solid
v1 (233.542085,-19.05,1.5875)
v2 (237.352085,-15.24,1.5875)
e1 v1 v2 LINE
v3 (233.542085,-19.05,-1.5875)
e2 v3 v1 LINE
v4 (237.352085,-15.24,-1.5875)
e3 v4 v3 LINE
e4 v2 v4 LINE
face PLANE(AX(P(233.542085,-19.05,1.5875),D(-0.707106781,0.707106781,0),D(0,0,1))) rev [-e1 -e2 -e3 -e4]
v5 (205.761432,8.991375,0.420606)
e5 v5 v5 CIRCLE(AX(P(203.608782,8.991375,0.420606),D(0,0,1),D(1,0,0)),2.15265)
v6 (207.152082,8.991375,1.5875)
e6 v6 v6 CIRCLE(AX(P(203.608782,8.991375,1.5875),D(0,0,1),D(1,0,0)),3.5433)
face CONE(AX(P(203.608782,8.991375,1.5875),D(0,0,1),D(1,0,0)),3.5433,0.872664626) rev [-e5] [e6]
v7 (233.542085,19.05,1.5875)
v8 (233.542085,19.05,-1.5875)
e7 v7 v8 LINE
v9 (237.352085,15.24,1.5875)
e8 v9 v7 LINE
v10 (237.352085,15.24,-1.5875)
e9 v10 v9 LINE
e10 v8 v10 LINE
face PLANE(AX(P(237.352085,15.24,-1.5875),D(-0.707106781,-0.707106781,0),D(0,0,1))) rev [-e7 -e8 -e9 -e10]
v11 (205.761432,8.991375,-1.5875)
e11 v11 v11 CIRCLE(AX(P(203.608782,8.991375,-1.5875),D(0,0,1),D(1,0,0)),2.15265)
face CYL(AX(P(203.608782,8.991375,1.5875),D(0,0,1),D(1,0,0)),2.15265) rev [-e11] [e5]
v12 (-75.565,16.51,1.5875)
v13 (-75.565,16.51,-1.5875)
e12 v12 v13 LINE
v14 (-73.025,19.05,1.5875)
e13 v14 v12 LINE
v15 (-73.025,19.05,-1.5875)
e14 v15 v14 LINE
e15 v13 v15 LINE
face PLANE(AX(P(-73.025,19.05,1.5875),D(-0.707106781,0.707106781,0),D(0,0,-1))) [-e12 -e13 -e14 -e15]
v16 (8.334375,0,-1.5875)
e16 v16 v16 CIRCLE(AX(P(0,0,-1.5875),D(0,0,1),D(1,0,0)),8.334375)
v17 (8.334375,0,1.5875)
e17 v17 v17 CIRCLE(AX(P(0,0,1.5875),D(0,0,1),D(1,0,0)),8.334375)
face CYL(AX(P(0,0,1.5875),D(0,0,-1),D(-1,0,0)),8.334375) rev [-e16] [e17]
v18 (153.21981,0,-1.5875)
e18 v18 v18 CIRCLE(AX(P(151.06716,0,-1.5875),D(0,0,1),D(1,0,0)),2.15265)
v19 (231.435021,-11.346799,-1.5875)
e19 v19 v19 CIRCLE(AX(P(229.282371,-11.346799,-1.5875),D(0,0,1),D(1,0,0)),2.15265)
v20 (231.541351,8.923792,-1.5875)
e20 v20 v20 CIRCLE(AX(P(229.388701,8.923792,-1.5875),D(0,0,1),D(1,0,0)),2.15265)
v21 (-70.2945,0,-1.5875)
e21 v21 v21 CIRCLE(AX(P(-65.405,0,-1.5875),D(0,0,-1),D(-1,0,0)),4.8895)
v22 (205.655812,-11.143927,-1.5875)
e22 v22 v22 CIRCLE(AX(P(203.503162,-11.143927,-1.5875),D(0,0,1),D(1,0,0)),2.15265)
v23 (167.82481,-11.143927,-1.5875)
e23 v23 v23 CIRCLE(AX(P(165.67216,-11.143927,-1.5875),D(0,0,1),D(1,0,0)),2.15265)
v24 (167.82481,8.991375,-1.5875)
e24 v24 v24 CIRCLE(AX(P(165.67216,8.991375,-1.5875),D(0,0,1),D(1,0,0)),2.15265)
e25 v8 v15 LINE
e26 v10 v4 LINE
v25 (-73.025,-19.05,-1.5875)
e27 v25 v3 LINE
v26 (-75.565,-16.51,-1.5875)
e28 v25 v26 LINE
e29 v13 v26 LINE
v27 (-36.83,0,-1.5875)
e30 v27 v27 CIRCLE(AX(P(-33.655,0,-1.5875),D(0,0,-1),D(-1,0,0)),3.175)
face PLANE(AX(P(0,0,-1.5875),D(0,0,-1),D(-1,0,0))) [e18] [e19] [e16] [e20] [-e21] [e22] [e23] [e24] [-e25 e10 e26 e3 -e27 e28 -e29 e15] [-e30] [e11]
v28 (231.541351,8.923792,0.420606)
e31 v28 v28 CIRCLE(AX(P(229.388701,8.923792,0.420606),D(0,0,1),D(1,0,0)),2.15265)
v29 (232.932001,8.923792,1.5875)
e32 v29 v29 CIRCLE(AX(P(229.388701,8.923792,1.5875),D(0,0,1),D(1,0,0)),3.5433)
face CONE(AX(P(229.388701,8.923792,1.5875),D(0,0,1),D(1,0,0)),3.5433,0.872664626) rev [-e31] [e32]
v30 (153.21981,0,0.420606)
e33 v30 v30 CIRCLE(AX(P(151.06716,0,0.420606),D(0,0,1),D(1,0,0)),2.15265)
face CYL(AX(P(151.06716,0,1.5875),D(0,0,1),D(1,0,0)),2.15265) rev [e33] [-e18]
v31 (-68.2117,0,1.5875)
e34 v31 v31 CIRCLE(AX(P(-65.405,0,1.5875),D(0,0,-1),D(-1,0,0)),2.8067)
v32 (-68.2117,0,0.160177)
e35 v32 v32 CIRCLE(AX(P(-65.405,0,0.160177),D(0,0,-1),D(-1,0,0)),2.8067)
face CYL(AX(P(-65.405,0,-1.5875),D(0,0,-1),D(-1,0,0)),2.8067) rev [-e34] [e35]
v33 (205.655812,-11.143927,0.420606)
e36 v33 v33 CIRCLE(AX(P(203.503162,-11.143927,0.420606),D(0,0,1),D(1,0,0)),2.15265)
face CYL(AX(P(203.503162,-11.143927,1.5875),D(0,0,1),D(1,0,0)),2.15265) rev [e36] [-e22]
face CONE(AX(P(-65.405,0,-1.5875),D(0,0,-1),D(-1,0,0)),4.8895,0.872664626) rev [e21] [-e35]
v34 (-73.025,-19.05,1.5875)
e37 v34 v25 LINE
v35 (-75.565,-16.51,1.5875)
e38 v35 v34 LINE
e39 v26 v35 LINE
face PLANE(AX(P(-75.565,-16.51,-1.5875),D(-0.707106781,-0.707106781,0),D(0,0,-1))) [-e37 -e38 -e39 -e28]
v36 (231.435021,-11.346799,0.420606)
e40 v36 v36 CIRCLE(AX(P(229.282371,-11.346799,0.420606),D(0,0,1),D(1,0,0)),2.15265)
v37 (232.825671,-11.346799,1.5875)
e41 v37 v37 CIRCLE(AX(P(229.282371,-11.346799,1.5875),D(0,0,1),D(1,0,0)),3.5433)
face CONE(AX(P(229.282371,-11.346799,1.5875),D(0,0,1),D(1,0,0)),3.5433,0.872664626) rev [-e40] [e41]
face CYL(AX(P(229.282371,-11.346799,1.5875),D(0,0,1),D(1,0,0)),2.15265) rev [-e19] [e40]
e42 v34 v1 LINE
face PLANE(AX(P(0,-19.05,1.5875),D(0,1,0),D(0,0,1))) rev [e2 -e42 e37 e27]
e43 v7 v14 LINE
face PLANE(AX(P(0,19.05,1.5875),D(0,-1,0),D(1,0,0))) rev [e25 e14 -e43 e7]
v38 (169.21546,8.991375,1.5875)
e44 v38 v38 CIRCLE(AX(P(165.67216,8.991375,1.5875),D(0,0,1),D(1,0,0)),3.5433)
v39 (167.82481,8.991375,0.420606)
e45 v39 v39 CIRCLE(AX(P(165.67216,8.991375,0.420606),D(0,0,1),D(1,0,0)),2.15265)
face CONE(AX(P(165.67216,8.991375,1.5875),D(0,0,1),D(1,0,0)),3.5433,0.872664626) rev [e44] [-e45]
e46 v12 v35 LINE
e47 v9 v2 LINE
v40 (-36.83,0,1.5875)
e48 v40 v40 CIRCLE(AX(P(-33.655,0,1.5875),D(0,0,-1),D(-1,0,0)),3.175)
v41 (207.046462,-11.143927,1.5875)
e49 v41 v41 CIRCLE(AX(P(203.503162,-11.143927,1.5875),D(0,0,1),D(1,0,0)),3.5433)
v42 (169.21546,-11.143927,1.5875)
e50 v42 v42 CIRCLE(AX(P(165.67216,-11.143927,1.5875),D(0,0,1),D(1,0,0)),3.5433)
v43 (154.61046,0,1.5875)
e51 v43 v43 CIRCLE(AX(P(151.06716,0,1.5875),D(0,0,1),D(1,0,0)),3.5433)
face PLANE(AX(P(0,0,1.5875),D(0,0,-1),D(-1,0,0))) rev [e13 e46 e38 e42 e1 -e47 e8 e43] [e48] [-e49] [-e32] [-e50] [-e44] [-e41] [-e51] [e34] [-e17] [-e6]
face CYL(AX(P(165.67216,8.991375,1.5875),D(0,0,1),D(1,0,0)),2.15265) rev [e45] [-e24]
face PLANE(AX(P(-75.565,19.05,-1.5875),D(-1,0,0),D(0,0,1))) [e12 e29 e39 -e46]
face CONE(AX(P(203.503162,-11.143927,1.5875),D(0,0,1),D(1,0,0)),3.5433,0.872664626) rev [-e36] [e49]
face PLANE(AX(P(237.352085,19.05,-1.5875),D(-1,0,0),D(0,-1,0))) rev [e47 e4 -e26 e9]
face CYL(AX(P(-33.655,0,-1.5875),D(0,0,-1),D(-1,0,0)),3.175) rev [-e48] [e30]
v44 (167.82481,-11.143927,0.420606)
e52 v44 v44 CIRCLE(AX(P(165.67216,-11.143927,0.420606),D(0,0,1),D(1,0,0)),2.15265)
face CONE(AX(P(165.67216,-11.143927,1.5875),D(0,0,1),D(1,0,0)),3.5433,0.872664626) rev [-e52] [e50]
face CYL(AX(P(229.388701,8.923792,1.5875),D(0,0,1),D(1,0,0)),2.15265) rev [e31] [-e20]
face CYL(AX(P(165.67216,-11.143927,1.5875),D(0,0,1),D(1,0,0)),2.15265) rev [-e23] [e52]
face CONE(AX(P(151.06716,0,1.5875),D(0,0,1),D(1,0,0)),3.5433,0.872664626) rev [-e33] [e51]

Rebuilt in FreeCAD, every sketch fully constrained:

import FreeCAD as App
import Part
import Sketcher
Q = App.Units.Quantity


def edges_at(feature, points):
    """Names of the edges that pass closest to the given points."""
    edges = feature.Shape.Edges
    near = lambda p: min(range(len(edges)), key=lambda i: edges[i].distToShape(Part.Vertex(*p))[0])
    return sorted({f"Edge{near(p) + 1}" for p in points})

doc = App.newDocument("Part")
body = doc.addObject("PartDesign::Body", "Body")

sketch1 = body.newObject("Sketcher::SketchObject", "Sketch")
sketch1.AttachmentSupport = (doc.getObject("XY_Plane"), [""])
sketch1.MapMode = "FlatFace"
sketch1.addGeometry(Part.LineSegment(App.Vector(-28.575, 19.05, 0), App.Vector(-28.575, -19.05, 0)), False)
sketch1.addGeometry(Part.LineSegment(App.Vector(-28.575, -19.05, 0), App.Vector(247.281942, -19.05, 0)), False)
sketch1.addGeometry(Part.LineSegment(App.Vector(247.281942, -19.05, 0), App.Vector(254, 19.05, 0)), False)
sketch1.addGeometry(Part.LineSegment(App.Vector(254, 19.05, 0), App.Vector(-28.575, 19.05, 0)), False)
sketch1.addGeometry(Part.Circle(App.Vector(0, 0, 0), App.Vector(0, 0, 1), 8.334375), False)
sketch1.addConstraint(Sketcher.Constraint("Coincident", 0, 2, 1, 1))
sketch1.addConstraint(Sketcher.Constraint("Coincident", 1, 2, 2, 1))
sketch1.addConstraint(Sketcher.Constraint("Coincident", 2, 2, 3, 1))
sketch1.addConstraint(Sketcher.Constraint("Coincident", 3, 2, 0, 1))
sketch1.addConstraint(Sketcher.Constraint("Vertical", 0))
sketch1.addConstraint(Sketcher.Constraint("Horizontal", 1))
sketch1.addConstraint(Sketcher.Constraint("Horizontal", 3))
sketch1.addConstraint(Sketcher.Constraint("Coincident", 4, 3, -1, 1))
sketch1.addConstraint(Sketcher.Constraint("Diameter", 4, Q("0.65625 in")))
sketch1.addConstraint(Sketcher.Constraint("DistanceY", 0, 2, 0, 1, Q("1.5 in")))
sketch1.addConstraint(Sketcher.Constraint("DistanceX", -1, 1, 2, 2, Q("10 in")))
sketch1.addConstraint(Sketcher.Constraint("Angle", 2, Q("80 deg")))
sketch1.addConstraint(Sketcher.Constraint("DistanceX", 3, 2, 3, 1, Q("11.125 in")))
sketch1.addConstraint(Sketcher.Constraint("DistanceY", 0, 2, -1, 1, Q("0.75 in")))
pad1 = body.newObject("PartDesign::Pad", "Pad")
pad1.Profile = sketch1
pad1.Length = Q("0.125 in")
pad1.Midplane = True

sketch2 = body.newObject("Sketcher::SketchObject", "Sketch001")
sketch2.AttachmentSupport = (doc.getObject("XY_Plane"), [""])
sketch2.MapMode = "FlatFace"
sketch2.AttachmentOffset = App.Placement(App.Vector(0, 0, 0.0625 * 25.4), App.Rotation())
sketch2.addGeometry(Part.Circle(App.Vector(229.388701, 8.923792, 0), App.Vector(0, 0, 1), 2.15265), False)
sketch2.addGeometry(Part.Circle(App.Vector(229.282371, -11.346799, 0), App.Vector(0, 0, 1), 2.15265), False)
sketch2.addGeometry(Part.Circle(App.Vector(203.503162, -11.143927, 0), App.Vector(0, 0, 1), 2.15265), False)
sketch2.addGeometry(Part.Circle(App.Vector(203.608782, 8.991375, 0), App.Vector(0, 0, 1), 2.15265), False)
sketch2.addGeometry(Part.Circle(App.Vector(165.67216, 8.991375, 0), App.Vector(0, 0, 1), 2.15265), False)
sketch2.addGeometry(Part.Circle(App.Vector(165.67216, -11.143927, 0), App.Vector(0, 0, 1), 2.15265), False)
sketch2.addGeometry(Part.Circle(App.Vector(151.06716, 0, 0), App.Vector(0, 0, 1), 2.15265), False)
sketch2.addConstraint(Sketcher.Constraint("Equal", 0, 1))
sketch2.addConstraint(Sketcher.Constraint("Equal", 1, 2))
sketch2.addConstraint(Sketcher.Constraint("Equal", 2, 3))
sketch2.addConstraint(Sketcher.Constraint("Equal", 3, 4))
sketch2.addConstraint(Sketcher.Constraint("Equal", 4, 5))
sketch2.addConstraint(Sketcher.Constraint("Equal", 5, 6))
sketch2.addConstraint(Sketcher.Constraint("PointOnObject", 6, 3, -1))
sketch2.addConstraint(Sketcher.Constraint("Horizontal", 3, 3, 4, 3))
sketch2.addConstraint(Sketcher.Constraint("Horizontal", 2, 3, 5, 3))
sketch2.addConstraint(Sketcher.Constraint("Vertical", 4, 3, 5, 3))
sketch2.addConstraint(Sketcher.Constraint("Diameter", 0, Q("0.1695 in")))
sketch2.addConstraint(Sketcher.Constraint("DistanceX", 6, 3, 4, 3, Q("0.575 in")))
sketch2.addConstraint(Sketcher.Constraint("DistanceX", -1, 1, 0, 3, 229.388701))
sketch2.addConstraint(Sketcher.Constraint("DistanceY", 1, 3, -1, 1, 11.346799))
sketch2.addConstraint(Sketcher.Constraint("DistanceY", -1, 1, 0, 3, 8.923792))
sketch2.addConstraint(Sketcher.Constraint("DistanceX", -1, 1, 1, 3, 229.282371))
sketch2.addConstraint(Sketcher.Constraint("DistanceX", -1, 1, 2, 3, 203.503162))
sketch2.addConstraint(Sketcher.Constraint("DistanceX", -1, 1, 4, 3, 165.67216))
sketch2.addConstraint(Sketcher.Constraint("DistanceY", 1, 3, 2, 3, 0.202872))
sketch2.addConstraint(Sketcher.Constraint("DistanceX", 2, 3, 3, 3, 0.105621))
sketch2.addConstraint(Sketcher.Constraint("DistanceY", -1, 1, 3, 3, 8.991375))
doc.recompute()
hole = body.newObject("PartDesign::Hole", "Hole")
hole.Profile = sketch2
hole.ThreadType = "None"
hole.Diameter = Q("0.1695 in")
hole.DepthType = "ThroughAll"

sketch3 = body.newObject("Sketcher::SketchObject", "Sketch002")
sketch3.AttachmentSupport = (doc.getObject("XY_Plane"), [""])
sketch3.MapMode = "FlatFace"
sketch3.AttachmentOffset = App.Placement(App.Vector(0, 0, 0.0625 * 25.4), App.Rotation())
sketch3.addGeometry(Part.LineSegment(App.Vector(247.281942, -19.05, 0), App.Vector(254, 19.05, 0)), False)
sketch3.addGeometry(Part.LineSegment(App.Vector(254, 19.05, 0), App.Vector(237.352085, 19.05, 0)), False)
sketch3.addGeometry(Part.LineSegment(App.Vector(237.352085, 19.05, 0), App.Vector(237.352085, -19.05, 0)), False)
sketch3.addGeometry(Part.LineSegment(App.Vector(237.352085, -19.05, 0), App.Vector(247.281942, -19.05, 0)), False)
sketch3.addConstraint(Sketcher.Constraint("Coincident", 0, 2, 1, 1))
sketch3.addConstraint(Sketcher.Constraint("Coincident", 1, 2, 2, 1))
sketch3.addConstraint(Sketcher.Constraint("Coincident", 2, 2, 3, 1))
sketch3.addConstraint(Sketcher.Constraint("Coincident", 3, 2, 0, 1))
sketch3.addConstraint(Sketcher.Constraint("Horizontal", 1))
sketch3.addConstraint(Sketcher.Constraint("Vertical", 2))
sketch3.addConstraint(Sketcher.Constraint("Horizontal", 3))
sketch3.addConstraint(Sketcher.Constraint("DistanceY", 2, 2, 2, 1, Q("1.5 in")))
sketch3.addConstraint(Sketcher.Constraint("DistanceX", -1, 1, 0, 2, Q("10 in")))
sketch3.addConstraint(Sketcher.Constraint("Angle", 0, Q("80 deg")))
sketch3.addConstraint(Sketcher.Constraint("DistanceY", -1, 1, 0, 2, Q("0.75 in")))
sketch3.addConstraint(Sketcher.Constraint("DistanceX", 1, 2, 1, 1, 16.647915))
pocket1 = body.newObject("PartDesign::Pocket", "Pocket")
pocket1.Profile = sketch3
pocket1.Type = "ThroughAll"
doc.recompute()

chamfer = body.newObject("PartDesign::Chamfer", "Chamfer")
chamfer.Base = (pocket1, edges_at(pocket1, [
    (-28.575, -19.05, 0),
    (-28.575, 19.05, 0),
    (237.352, 19.05, 0),
    (237.352, -19.05, 0),
]))
chamfer.Size = Q("0.15 in")

sketch4 = body.newObject("Sketcher::SketchObject", "Sketch003")
sketch4.AttachmentSupport = (doc.getObject("XY_Plane"), [""])
sketch4.MapMode = "FlatFace"
sketch4.AttachmentOffset = App.Placement(App.Vector(0, 0, 0.0625 * 25.4), App.Rotation())
sketch4.addGeometry(Part.Circle(App.Vector(203.608782, 8.991375, 0), App.Vector(0, 0, 1), 2.15265), False)
sketch4.addGeometry(Part.Circle(App.Vector(203.503162, -11.143927, 0), App.Vector(0, 0, 1), 2.15265), False)
sketch4.addGeometry(Part.Circle(App.Vector(229.282371, -11.346799, 0), App.Vector(0, 0, 1), 2.15265), False)
sketch4.addGeometry(Part.Circle(App.Vector(229.388701, 8.923792, 0), App.Vector(0, 0, 1), 2.15265), False)
sketch4.addGeometry(Part.Circle(App.Vector(165.67216, 8.991375, 0), App.Vector(0, 0, 1), 2.15265), False)
sketch4.addGeometry(Part.Circle(App.Vector(165.67216, -11.143927, 0), App.Vector(0, 0, 1), 2.15265), False)
sketch4.addGeometry(Part.Circle(App.Vector(151.06716, 0, 0), App.Vector(0, 0, 1), 2.15265), False)
sketch4.addConstraint(Sketcher.Constraint("Equal", 0, 1))
sketch4.addConstraint(Sketcher.Constraint("Equal", 1, 2))
sketch4.addConstraint(Sketcher.Constraint("Equal", 2, 3))
sketch4.addConstraint(Sketcher.Constraint("Equal", 3, 4))
sketch4.addConstraint(Sketcher.Constraint("Equal", 4, 5))
sketch4.addConstraint(Sketcher.Constraint("Equal", 5, 6))
sketch4.addConstraint(Sketcher.Constraint("PointOnObject", 6, 3, -1))
sketch4.addConstraint(Sketcher.Constraint("Horizontal", 0, 3, 4, 3))
sketch4.addConstraint(Sketcher.Constraint("Horizontal", 1, 3, 5, 3))
sketch4.addConstraint(Sketcher.Constraint("Vertical", 4, 3, 5, 3))
sketch4.addConstraint(Sketcher.Constraint("Diameter", 0, Q("0.1695 in")))
sketch4.addConstraint(Sketcher.Constraint("DistanceX", 6, 3, 4, 3, Q("0.575 in")))
sketch4.addConstraint(Sketcher.Constraint("DistanceY", 2, 3, -1, 1, 11.346799))
sketch4.addConstraint(Sketcher.Constraint("DistanceX", -1, 1, 3, 3, 229.388701))
sketch4.addConstraint(Sketcher.Constraint("DistanceX", -1, 1, 1, 3, 203.503162))
sketch4.addConstraint(Sketcher.Constraint("DistanceX", -1, 1, 2, 3, 229.282371))
sketch4.addConstraint(Sketcher.Constraint("DistanceY", -1, 1, 3, 3, 8.923792))
sketch4.addConstraint(Sketcher.Constraint("DistanceX", -1, 1, 4, 3, 165.67216))
sketch4.addConstraint(Sketcher.Constraint("DistanceX", 1, 3, 0, 3, 0.105621))
sketch4.addConstraint(Sketcher.Constraint("DistanceY", 2, 3, 1, 3, 0.202872))
sketch4.addConstraint(Sketcher.Constraint("DistanceY", -1, 1, 0, 3, 8.991375))
doc.recompute()
hole2 = body.newObject("PartDesign::Hole", "Hole001")
hole2.Profile = sketch4
hole2.ThreadType = "None"
hole2.Diameter = Q("0.1695 in")
hole2.DepthType = "ThroughAll"
hole2.HoleCutType = "Countersink"
hole2.HoleCutDiameter = Q("0.279 in")
hole2.HoleCutCountersinkAngle = 100

sketch5 = body.newObject("Sketcher::SketchObject", "Sketch004")
sketch5.AttachmentSupport = (doc.getObject("XY_Plane"), [""])
sketch5.MapMode = "FlatFace"
sketch5.AttachmentOffset = App.Placement(App.Vector(0, 0, 0.0625 * 25.4), App.Rotation())
sketch5.addGeometry(Part.LineSegment(App.Vector(-75.565, 19.05, 0), App.Vector(-75.565, -19.05, 0)), False)
sketch5.addGeometry(Part.LineSegment(App.Vector(-75.565, -19.05, 0), App.Vector(-24.765, -19.05, 0)), False)
sketch5.addGeometry(Part.LineSegment(App.Vector(-24.765, -19.05, 0), App.Vector(-24.765, 19.05, 0)), False)
sketch5.addGeometry(Part.LineSegment(App.Vector(-24.765, 19.05, 0), App.Vector(-75.565, 19.05, 0)), False)
sketch5.addConstraint(Sketcher.Constraint("Coincident", 0, 2, 1, 1))
sketch5.addConstraint(Sketcher.Constraint("Coincident", 1, 2, 2, 1))
sketch5.addConstraint(Sketcher.Constraint("Coincident", 2, 2, 3, 1))
sketch5.addConstraint(Sketcher.Constraint("Coincident", 3, 2, 0, 1))
sketch5.addConstraint(Sketcher.Constraint("Vertical", 0))
sketch5.addConstraint(Sketcher.Constraint("Horizontal", 1))
sketch5.addConstraint(Sketcher.Constraint("Vertical", 2))
sketch5.addConstraint(Sketcher.Constraint("Horizontal", 3))
sketch5.addConstraint(Sketcher.Constraint("DistanceX", 1, 1, 1, 2, Q("2 in")))
sketch5.addConstraint(Sketcher.Constraint("DistanceY", 0, 2, 0, 1, Q("1.5 in")))
sketch5.addConstraint(Sketcher.Constraint("DistanceY", 0, 2, -1, 1, Q("0.75 in")))
sketch5.addConstraint(Sketcher.Constraint("DistanceX", 0, 2, -1, 1, Q("2.975 in")))
pad2 = body.newObject("PartDesign::Pad", "Pad001")
pad2.Profile = sketch5
pad2.Length = Q("0.125 in")
pad2.Reversed = True
doc.recompute()

chamfer2 = body.newObject("PartDesign::Chamfer", "Chamfer001")
chamfer2.Base = (pad2, edges_at(pad2, [(-75.565, -19.05, 0), (-75.565, 19.05, 0)]))
chamfer2.Size = Q("0.1 in")

sketch6 = body.newObject("Sketcher::SketchObject", "Sketch005")
sketch6.AttachmentSupport = (doc.getObject("YZ_Plane"), [""])
sketch6.MapMode = "FlatFace"
sketch6.AttachmentOffset = App.Placement(App.Vector(0, 0, -2.575 * 25.4), App.Rotation())
sketch6.addGeometry(Part.LineSegment(App.Vector(0, 1.5875, 0), App.Vector(0, -1.5875, 0)), False)
sketch6.addGeometry(Part.LineSegment(App.Vector(0, -1.5875, 0), App.Vector(4.8895, -1.5875, 0)), False)
sketch6.addGeometry(Part.LineSegment(App.Vector(4.8895, -1.5875, 0), App.Vector(2.8067, 0.160177, 0)), False)
sketch6.addGeometry(Part.LineSegment(App.Vector(2.8067, 0.160177, 0), App.Vector(2.8067, 1.5875, 0)), False)
sketch6.addGeometry(Part.LineSegment(App.Vector(2.8067, 1.5875, 0), App.Vector(0, 1.5875, 0)), False)
sketch6.addConstraint(Sketcher.Constraint("Coincident", 0, 2, 1, 1))
sketch6.addConstraint(Sketcher.Constraint("Coincident", 1, 2, 2, 1))
sketch6.addConstraint(Sketcher.Constraint("Coincident", 2, 2, 3, 1))
sketch6.addConstraint(Sketcher.Constraint("Coincident", 3, 2, 4, 1))
sketch6.addConstraint(Sketcher.Constraint("Coincident", 4, 2, 0, 1))
sketch6.addConstraint(Sketcher.Constraint("Vertical", 0))
sketch6.addConstraint(Sketcher.Constraint("Horizontal", 1))
sketch6.addConstraint(Sketcher.Constraint("Vertical", 3))
sketch6.addConstraint(Sketcher.Constraint("Horizontal", 4))
sketch6.addConstraint(Sketcher.Constraint("Symmetric", 0, 2, 4, 2, -1, 1))
sketch6.addConstraint(Sketcher.Constraint("Angle", 2, Q("140 deg")))
sketch6.addConstraint(Sketcher.Constraint("DistanceY", 0, 2, 0, 1, Q("0.125 in")))
sketch6.addConstraint(Sketcher.Constraint("DistanceX", 1, 1, 1, 2, Q("0.1925 in")))
sketch6.addConstraint(Sketcher.Constraint("DistanceX", 4, 2, 4, 1, Q("0.1105 in")))
groove = body.newObject("PartDesign::Groove", "Groove")
groove.Profile = sketch6
groove.ReferenceAxis = (sketch6, ["V_Axis"])
groove.Angle = 360

sketch7 = body.newObject("Sketcher::SketchObject", "Sketch006")
sketch7.AttachmentSupport = (doc.getObject("XY_Plane"), [""])
sketch7.MapMode = "FlatFace"
sketch7.AttachmentOffset = App.Placement(App.Vector(0, 0, -0.0625 * 25.4), App.Rotation())
sketch7.addGeometry(Part.Circle(App.Vector(-33.655, 0, 0), App.Vector(0, 0, 1), 3.175), False)
sketch7.addConstraint(Sketcher.Constraint("PointOnObject", 0, 3, -1))
sketch7.addConstraint(Sketcher.Constraint("Diameter", 0, Q("0.25 in")))
sketch7.addConstraint(Sketcher.Constraint("DistanceX", 0, 3, -1, 1, Q("1.325 in")))
doc.recompute()
hole3 = body.newObject("PartDesign::Hole", "Hole002")
hole3.Profile = sketch7
hole3.ThreadType = "None"
hole3.Diameter = Q("0.25 in")
hole3.DepthType = "ThroughAll"
hole3.Reversed = True

doc.recompute()
